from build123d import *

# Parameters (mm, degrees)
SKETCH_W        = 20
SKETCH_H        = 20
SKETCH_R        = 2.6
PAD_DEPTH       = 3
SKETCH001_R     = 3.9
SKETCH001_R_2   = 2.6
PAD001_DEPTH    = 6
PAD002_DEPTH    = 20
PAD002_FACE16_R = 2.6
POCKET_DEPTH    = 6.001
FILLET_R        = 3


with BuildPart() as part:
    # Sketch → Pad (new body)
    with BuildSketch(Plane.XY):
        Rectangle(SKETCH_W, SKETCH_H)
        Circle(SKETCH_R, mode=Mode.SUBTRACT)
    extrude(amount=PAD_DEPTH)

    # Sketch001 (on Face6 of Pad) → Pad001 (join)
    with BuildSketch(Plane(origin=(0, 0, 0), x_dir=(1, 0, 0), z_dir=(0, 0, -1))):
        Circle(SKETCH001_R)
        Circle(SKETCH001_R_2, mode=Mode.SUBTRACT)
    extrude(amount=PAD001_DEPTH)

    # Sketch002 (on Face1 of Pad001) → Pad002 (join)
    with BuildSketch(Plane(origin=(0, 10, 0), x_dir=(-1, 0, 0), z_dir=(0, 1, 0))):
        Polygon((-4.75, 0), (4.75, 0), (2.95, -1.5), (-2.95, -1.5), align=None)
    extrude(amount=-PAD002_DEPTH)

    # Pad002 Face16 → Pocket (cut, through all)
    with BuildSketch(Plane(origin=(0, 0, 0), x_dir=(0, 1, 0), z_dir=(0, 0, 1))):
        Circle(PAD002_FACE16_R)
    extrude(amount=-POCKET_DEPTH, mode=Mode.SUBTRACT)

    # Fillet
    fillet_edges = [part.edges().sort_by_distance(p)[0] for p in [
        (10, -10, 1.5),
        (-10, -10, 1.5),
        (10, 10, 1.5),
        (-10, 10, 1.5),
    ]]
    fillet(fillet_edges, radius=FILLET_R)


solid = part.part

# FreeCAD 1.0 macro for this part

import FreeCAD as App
import Part
import Sketcher


def edges_at(feature, points):
    """Names of the edges that pass closest to the given points."""
    edges = feature.Shape.Edges
    near = lambda p: min(range(len(edges)), key=lambda i: edges[i].distToShape(Part.Vertex(*p))[0])
    return sorted({f"Edge{near(p) + 1}" for p in points})

doc = App.newDocument("Part")
body = doc.addObject("PartDesign::Body", "Body")

# Sketch on XY plane
sketch1 = body.newObject("Sketcher::SketchObject", "Sketch")
sketch1.AttachmentSupport = (doc.getObject("XY_Plane"), [""])
sketch1.MapMode = "FlatFace"
sketch1.addGeometry([
    Part.LineSegment(App.Vector(-10, 10, 0), App.Vector(-10, -10, 0)),  # 0
    Part.LineSegment(App.Vector(-10, -10, 0), App.Vector(10, -10, 0)),  # 1
    Part.LineSegment(App.Vector(10, -10, 0), App.Vector(10, 10, 0)),  # 2
    Part.LineSegment(App.Vector(10, 10, 0), App.Vector(-10, 10, 0)),  # 3
    Part.Circle(App.Vector(0, 0, 0), App.Vector(0, 0, 1), 2.6),  # 4
], False)
sketch1.addConstraint([
    Sketcher.Constraint("Coincident", 0, 2, 1, 1),
    Sketcher.Constraint("Coincident", 1, 2, 2, 1),
    Sketcher.Constraint("Coincident", 2, 2, 3, 1),
    Sketcher.Constraint("Coincident", 3, 2, 0, 1),
    Sketcher.Constraint("Vertical", 0),
    Sketcher.Constraint("Horizontal", 1),
    Sketcher.Constraint("Vertical", 2),
    Sketcher.Constraint("Horizontal", 3),
    Sketcher.Constraint("Coincident", 4, 3, -1, 1),
    Sketcher.Constraint("Symmetric", 0, 2, 2, 2, -1, 1),
    Sketcher.Constraint("Equal", 3, 0),
    Sketcher.Constraint("Diameter", 4, 5.2),
    Sketcher.Constraint("DistanceX", 1, 1, 1, 2, 20.0),
])
pad1 = body.newObject("PartDesign::Pad", "Pad")
pad1.Profile = sketch1
pad1.Length = 3

# Sketch on XY plane
sketch2 = body.newObject("Sketcher::SketchObject", "Sketch001")
sketch2.AttachmentSupport = (doc.getObject("XY_Plane"), [""])
sketch2.MapMode = "FlatFace"
sketch2.addGeometry([
    Part.Circle(App.Vector(0, 0, 0), App.Vector(0, 0, 1), 3.9),
    Part.Circle(App.Vector(0, 0, 0), App.Vector(0, 0, 1), 2.6),
], False)
sketch2.addConstraint([
    Sketcher.Constraint("Coincident", 0, 3, -1, 1),
    Sketcher.Constraint("Coincident", 1, 3, -1, 1),
    Sketcher.Constraint("Diameter", 0, 7.8),
    Sketcher.Constraint("Diameter", 1, 5.2),
])
pad2 = body.newObject("PartDesign::Pad", "Pad001")
pad2.Profile = sketch2
pad2.Length = 6
pad2.Reversed = True

# Sketch on XZ plane
sketch3 = body.newObject("Sketcher::SketchObject", "Sketch002")
sketch3.AttachmentSupport = (doc.getObject("XZ_Plane"), [""])
sketch3.MapMode = "FlatFace"
sketch3.AttachmentOffset = App.Placement(App.Vector(0, 0, -10), App.Rotation())
sketch3.addGeometry([
    Part.LineSegment(App.Vector(-4.75, 0, 0), App.Vector(4.75, 0, 0)),
    Part.LineSegment(App.Vector(4.75, 0, 0), App.Vector(2.95, -1.5, 0)),
    Part.LineSegment(App.Vector(2.95, -1.5, 0), App.Vector(-2.95, -1.5, 0)),
    Part.LineSegment(App.Vector(-2.95, -1.5, 0), App.Vector(-4.75, 0, 0)),
], False)
sketch3.addConstraint([
    Sketcher.Constraint("Coincident", 0, 2, 1, 1),
    Sketcher.Constraint("Coincident", 1, 2, 2, 1),
    Sketcher.Constraint("Coincident", 2, 2, 3, 1),
    Sketcher.Constraint("Coincident", 3, 2, 0, 1),
    Sketcher.Constraint("Horizontal", 0),
    Sketcher.Constraint("Horizontal", 2),
    Sketcher.Constraint("Symmetric", 0, 2, 3, 2, -1, 1),
    Sketcher.Constraint("Equal", 1, 3),
    Sketcher.Constraint("DistanceX", 0, 1, 0, 2, 9.5),
    Sketcher.Constraint("DistanceX", 2, 2, 2, 1, 5.9),
    Sketcher.Constraint("DistanceY", 1, 2, -1, 1, 1.5),
])
pad3 = body.newObject("PartDesign::Pad", "Pad002")
pad3.Profile = sketch3
pad3.Length = 20

# Sketch on XY plane
sketch4 = body.newObject("Sketcher::SketchObject", "Sketch003")
sketch4.AttachmentSupport = (doc.getObject("XY_Plane"), [""])
sketch4.MapMode = "FlatFace"
sketch4.addGeometry(Part.Circle(App.Vector(0, 0, 0), App.Vector(0, 0, 1), 2.6), False)
sketch4.addConstraint([
    Sketcher.Constraint("Coincident", 0, 3, -1, 1),
    Sketcher.Constraint("Diameter", 0, 5.2),
])
pocket1 = body.newObject("PartDesign::Pocket", "Pocket")
pocket1.Profile = sketch4
pocket1.Type = "ThroughAll"
doc.recompute()

fillet = body.newObject("PartDesign::Fillet", "Fillet")
fillet.Base = (pocket1, edges_at(pocket1, [
    (10, -10, 1.5),
    (-10, -10, 1.5),
    (10, 10, 1.5),
    (-10, 10, 1.5),
]))
fillet.Radius = 3

doc.recompute()
